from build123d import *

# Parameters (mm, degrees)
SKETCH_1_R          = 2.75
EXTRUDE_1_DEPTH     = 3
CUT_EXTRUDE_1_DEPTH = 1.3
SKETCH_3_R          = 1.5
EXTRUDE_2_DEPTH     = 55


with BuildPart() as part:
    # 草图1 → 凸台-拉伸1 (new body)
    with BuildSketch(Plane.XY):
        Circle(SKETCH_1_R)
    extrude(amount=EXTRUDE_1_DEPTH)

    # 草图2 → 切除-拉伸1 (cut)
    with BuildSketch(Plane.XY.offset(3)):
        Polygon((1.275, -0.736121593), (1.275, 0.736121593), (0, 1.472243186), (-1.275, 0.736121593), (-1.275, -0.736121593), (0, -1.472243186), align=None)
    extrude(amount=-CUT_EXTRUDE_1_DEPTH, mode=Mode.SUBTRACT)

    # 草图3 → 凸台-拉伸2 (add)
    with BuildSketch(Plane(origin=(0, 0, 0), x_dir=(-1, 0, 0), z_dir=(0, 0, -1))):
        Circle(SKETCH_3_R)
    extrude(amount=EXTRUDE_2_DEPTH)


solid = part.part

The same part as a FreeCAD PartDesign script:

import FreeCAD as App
import Part
import Sketcher
Q = App.Units.Quantity

doc = App.newDocument("Part")
params = doc.addObject("Spreadsheet::Sheet", "Params")
for row, (alias, value) in enumerate([
    ("sketch1_diameter", "5.5 mm"),
    ("pad1_length", "3 mm"),
    ("pocket1_length", "1.3 mm"),
    ("sketch3_diameter", "3 mm"),
    ("pad2_length", "55 mm"),
], start=1):
    params.set(f"A{row}", alias)
    params.set(f"B{row}", "=" + value)
    params.setAlias(f"B{row}", alias)

body = doc.addObject("PartDesign::Body", "Body")

# Sketch on XY plane
sketch1 = body.newObject("Sketcher::SketchObject", "Sketch")
sketch1.AttachmentSupport = (doc.getObject("XY_Plane"), [""])
sketch1.MapMode = "FlatFace"
sketch1.addGeometry(Part.Circle(App.Vector(0, 0, 0), App.Vector(0, 0, 1), 2.8), False)
sketch1.addConstraint([
    Sketcher.Constraint("Coincident", 0, 3, -1, 1),
    Sketcher.Constraint("Diameter", 0, Q("5.5 mm")),
])
sketch1.setExpression("Constraints[1]", "Params.sketch1_diameter")
pad1 = body.newObject("PartDesign::Pad", "Pad")
pad1.Profile = sketch1
pad1.setExpression("Length", "Params.pad1_length")

# Sketch on XY plane
sketch2 = body.newObject("Sketcher::SketchObject", "Sketch001")
sketch2.AttachmentSupport = (doc.getObject("XY_Plane"), [""])
sketch2.MapMode = "FlatFace"
sketch2.AttachmentOffset = App.Placement(App.Vector(0, 0, 3), App.Rotation())
sketch2.addGeometry([
    Part.LineSegment(App.Vector(1.3, -0.7, 0), App.Vector(1.3, 0.7, 0)),  # 0
    Part.LineSegment(App.Vector(1.3, 0.7, 0), App.Vector(0, 1.5, 0)),  # 1
    Part.LineSegment(App.Vector(0, 1.5, 0), App.Vector(-1.3, 0.7, 0)),  # 2
    Part.LineSegment(App.Vector(-1.3, 0.7, 0), App.Vector(-1.3, -0.7, 0)),  # 3
    Part.LineSegment(App.Vector(-1.3, -0.7, 0), App.Vector(0, -1.5, 0)),  # 4
    Part.LineSegment(App.Vector(0, -1.5, 0), App.Vector(1.3, -0.7, 0)),  # 5
], False)
sketch2.addConstraint([
    Sketcher.Constraint("Coincident", 0, 2, 1, 1),
    Sketcher.Constraint("Coincident", 1, 2, 2, 1),
    Sketcher.Constraint("Coincident", 2, 2, 3, 1),
    Sketcher.Constraint("Coincident", 3, 2, 4, 1),
    Sketcher.Constraint("Coincident", 4, 2, 5, 1),
    Sketcher.Constraint("Coincident", 5, 2, 0, 1),
    Sketcher.Constraint("Vertical", 0),
    Sketcher.Constraint("Vertical", 3),
    Sketcher.Constraint("Symmetric", 0, 2, 3, 2, -1, 1),
    Sketcher.Constraint("Symmetric", 1, 2, 4, 2, -1, 1),
    Sketcher.Constraint("PointOnObject", 1, 2, -2),
    Sketcher.Constraint("Parallel", 2, 5),
    Sketcher.Constraint("Horizontal", 0, 2, 2, 2),
    Sketcher.Constraint("Angle", 1, Q("150 deg")),
    Sketcher.Constraint("DistanceX", 2, 2, 0, 2, Q("2.55 mm")),
    Sketcher.Constraint("DistanceY", 0, 1, 0, 2, Q("1.472243 mm")),
])
pocket1 = body.newObject("PartDesign::Pocket", "Pocket")
pocket1.Profile = sketch2
pocket1.setExpression("Length", "Params.pocket1_length")

# Sketch on XY plane
sketch3 = body.newObject("Sketcher::SketchObject", "Sketch002")
sketch3.AttachmentSupport = (doc.getObject("XY_Plane"), [""])
sketch3.MapMode = "FlatFace"
sketch3.addGeometry(Part.Circle(App.Vector(0, 0, 0), App.Vector(0, 0, 1), 1.5), False)
sketch3.addConstraint([
    Sketcher.Constraint("Coincident", 0, 3, -1, 1),
    Sketcher.Constraint("Diameter", 0, Q("3 mm")),
])
sketch3.setExpression("Constraints[1]", "Params.sketch3_diameter")
pad2 = body.newObject("PartDesign::Pad", "Pad001")
pad2.Profile = sketch3
pad2.setExpression("Length", "Params.pad2_length")
pad2.Reversed = True

doc.recompute()
